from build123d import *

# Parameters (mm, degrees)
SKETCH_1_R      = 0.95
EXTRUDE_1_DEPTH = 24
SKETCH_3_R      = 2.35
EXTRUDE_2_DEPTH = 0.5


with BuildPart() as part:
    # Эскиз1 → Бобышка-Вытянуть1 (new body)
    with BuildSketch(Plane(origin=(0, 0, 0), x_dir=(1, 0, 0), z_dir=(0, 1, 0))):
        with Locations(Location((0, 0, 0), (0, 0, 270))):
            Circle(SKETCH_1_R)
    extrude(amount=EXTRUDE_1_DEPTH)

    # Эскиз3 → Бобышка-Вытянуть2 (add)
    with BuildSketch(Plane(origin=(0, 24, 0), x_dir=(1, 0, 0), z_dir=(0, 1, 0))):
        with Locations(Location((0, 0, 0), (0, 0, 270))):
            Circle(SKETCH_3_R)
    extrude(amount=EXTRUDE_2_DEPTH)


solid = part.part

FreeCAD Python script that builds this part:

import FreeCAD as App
import Part
import Sketcher
Q = App.Units.Quantity

doc = App.newDocument("Part")
body = doc.addObject("PartDesign::Body", "Body")

sketch1 = body.newObject("Sketcher::SketchObject", "Sketch")
sketch1.AttachmentSupport = (doc.getObject("XZ_Plane"), [""])
sketch1.MapMode = "FlatFace"
sketch1.addGeometry(Part.Circle(App.Vector(0, 0, 0), App.Vector(0, 0, 1), 0.9), False)
sketch1.addConstraint([
    Sketcher.Constraint("Coincident", 0, 3, -1, 1),
    Sketcher.Constraint("Diameter", 0, Q("1.9 mm")),
])
pad1 = body.newObject("PartDesign::Pad", "Pad")
pad1.Profile = sketch1
pad1.Length = 24
pad1.Reversed = True

sketch2 = body.newObject("Sketcher::SketchObject", "Sketch001")
sketch2.AttachmentSupport = (doc.getObject("XZ_Plane"), [""])
sketch2.MapMode = "FlatFace"
sketch2.AttachmentOffset = App.Placement(App.Vector(0, 0, -24), App.Rotation())
sketch2.addGeometry(Part.Circle(App.Vector(0, 0, 0), App.Vector(0, 0, 1), 2.4), False)
sketch2.addConstraint([
    Sketcher.Constraint("Coincident", 0, 3, -1, 1),
    Sketcher.Constraint("Diameter", 0, Q("4.7 mm")),
])
pad2 = body.newObject("PartDesign::Pad", "Pad001")
pad2.Profile = sketch2
pad2.Length = 0.5
pad2.Reversed = True

doc.recompute()
